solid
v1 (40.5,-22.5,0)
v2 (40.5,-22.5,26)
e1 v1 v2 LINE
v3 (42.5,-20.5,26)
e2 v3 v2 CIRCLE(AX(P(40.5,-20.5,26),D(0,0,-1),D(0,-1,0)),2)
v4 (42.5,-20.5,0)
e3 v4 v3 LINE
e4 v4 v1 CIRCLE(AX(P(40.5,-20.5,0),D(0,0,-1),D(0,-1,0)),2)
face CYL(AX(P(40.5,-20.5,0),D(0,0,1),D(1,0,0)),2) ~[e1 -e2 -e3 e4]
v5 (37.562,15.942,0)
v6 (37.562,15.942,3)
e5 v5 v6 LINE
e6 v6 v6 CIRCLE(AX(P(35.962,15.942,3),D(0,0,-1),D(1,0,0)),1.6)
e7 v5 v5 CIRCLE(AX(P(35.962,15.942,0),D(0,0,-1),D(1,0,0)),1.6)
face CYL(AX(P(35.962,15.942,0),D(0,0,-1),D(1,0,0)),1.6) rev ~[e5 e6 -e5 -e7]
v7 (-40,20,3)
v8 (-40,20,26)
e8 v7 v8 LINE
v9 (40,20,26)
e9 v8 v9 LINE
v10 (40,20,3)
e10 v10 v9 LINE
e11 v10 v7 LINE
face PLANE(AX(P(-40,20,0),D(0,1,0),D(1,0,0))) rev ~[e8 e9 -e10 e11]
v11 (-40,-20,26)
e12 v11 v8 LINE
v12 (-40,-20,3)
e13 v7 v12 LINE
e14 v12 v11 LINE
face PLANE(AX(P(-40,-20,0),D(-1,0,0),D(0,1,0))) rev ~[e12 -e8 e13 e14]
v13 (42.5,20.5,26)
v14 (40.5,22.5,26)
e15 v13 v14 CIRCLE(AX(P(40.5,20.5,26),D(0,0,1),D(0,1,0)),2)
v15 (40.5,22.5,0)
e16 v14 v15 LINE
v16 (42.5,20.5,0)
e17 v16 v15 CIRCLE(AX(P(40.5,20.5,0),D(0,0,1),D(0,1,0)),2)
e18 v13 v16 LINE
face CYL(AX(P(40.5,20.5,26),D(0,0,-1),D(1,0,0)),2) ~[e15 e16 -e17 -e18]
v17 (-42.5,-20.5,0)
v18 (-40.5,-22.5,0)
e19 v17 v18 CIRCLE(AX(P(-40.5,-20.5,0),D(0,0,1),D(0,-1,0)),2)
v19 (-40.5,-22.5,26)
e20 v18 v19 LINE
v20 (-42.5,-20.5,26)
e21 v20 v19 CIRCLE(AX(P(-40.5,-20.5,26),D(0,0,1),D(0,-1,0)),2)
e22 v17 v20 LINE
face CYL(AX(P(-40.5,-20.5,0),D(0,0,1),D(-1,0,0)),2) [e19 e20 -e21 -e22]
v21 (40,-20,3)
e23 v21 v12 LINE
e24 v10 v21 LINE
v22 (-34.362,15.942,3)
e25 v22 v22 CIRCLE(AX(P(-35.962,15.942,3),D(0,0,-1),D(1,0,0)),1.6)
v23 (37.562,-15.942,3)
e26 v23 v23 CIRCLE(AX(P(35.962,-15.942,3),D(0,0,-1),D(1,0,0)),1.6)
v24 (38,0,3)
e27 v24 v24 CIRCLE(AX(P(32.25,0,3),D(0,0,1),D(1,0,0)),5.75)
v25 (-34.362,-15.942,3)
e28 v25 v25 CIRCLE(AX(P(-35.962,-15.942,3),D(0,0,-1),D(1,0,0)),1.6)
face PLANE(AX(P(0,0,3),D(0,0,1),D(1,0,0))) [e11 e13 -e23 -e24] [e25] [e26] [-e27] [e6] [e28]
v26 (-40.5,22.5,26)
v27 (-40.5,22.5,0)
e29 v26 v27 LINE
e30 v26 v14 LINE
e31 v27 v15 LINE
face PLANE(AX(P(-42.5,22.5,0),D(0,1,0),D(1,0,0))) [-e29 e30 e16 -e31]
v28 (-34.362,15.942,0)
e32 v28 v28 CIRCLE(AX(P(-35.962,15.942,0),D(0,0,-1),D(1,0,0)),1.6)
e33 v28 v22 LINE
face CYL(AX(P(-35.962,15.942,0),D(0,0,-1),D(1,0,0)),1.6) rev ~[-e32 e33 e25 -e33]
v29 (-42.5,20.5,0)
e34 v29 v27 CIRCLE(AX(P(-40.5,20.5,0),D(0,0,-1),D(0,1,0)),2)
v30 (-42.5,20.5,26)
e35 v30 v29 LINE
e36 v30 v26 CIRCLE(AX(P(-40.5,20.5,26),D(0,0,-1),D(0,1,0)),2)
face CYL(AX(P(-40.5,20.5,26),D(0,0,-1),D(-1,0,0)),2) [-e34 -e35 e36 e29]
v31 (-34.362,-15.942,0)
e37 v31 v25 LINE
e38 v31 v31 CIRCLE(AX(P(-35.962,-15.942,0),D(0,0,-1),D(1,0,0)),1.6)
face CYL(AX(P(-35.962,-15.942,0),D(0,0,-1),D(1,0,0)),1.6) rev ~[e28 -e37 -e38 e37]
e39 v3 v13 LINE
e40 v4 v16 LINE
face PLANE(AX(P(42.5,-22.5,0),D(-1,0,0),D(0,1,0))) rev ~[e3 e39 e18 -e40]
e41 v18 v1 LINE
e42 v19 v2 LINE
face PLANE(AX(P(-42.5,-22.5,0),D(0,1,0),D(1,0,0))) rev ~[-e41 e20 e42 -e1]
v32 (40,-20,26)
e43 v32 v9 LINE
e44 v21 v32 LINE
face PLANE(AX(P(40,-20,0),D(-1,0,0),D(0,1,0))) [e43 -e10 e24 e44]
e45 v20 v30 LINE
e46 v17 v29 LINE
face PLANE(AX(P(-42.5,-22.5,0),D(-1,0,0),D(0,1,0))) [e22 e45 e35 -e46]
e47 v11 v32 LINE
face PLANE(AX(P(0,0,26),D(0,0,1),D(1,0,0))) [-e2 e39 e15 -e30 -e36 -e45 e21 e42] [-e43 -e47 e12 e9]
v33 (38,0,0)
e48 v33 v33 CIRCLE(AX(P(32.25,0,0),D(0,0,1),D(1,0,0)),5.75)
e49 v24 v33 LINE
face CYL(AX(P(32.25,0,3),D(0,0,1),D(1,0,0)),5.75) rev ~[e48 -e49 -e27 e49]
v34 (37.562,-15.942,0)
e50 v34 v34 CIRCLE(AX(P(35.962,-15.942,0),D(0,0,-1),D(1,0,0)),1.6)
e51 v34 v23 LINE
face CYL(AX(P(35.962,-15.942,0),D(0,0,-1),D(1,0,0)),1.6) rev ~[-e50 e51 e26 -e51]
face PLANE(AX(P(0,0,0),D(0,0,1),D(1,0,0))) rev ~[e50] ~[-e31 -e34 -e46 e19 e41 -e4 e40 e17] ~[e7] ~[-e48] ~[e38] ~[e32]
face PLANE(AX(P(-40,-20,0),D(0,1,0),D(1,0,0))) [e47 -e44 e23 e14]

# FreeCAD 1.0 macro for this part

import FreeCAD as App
import Part
import Sketcher

V = App.Vector
Q = App.Units.Quantity


def edges_at(feature, points):
    """Names of the edges that pass closest to the given points."""
    edges = feature.Shape.Edges
    near = lambda p: min(range(len(edges)), key=lambda i: edges[i].distToShape(Part.Vertex(*p))[0])
    return sorted({f"Edge{near(p) + 1}" for p in points})

doc = App.newDocument("Part")
body = doc.addObject("PartDesign::Body", "Body")

# Sketch on XY plane
sketch1 = body.newObject("Sketcher::SketchObject", "Sketch")
sketch1.AttachmentSupport = (doc.getObject("XY_Plane"), [""])
sketch1.MapMode = "FlatFace"
sketch1.addGeometry([
    Part.LineSegment(V(-42, 22, 0), V(-42, -22, 0)),
    Part.LineSegment(V(-42, -22, 0), V(42, -22, 0)),
    Part.LineSegment(V(42, -22, 0), V(42, 22, 0)),
    Part.LineSegment(V(42, 22, 0), V(-42, 22, 0)),
], False)
sketch1.addConstraint([
    Sketcher.Constraint("Coincident", 0, 2, 1, 1),
    Sketcher.Constraint("Coincident", 1, 2, 2, 1),
    Sketcher.Constraint("Coincident", 2, 2, 3, 1),
    Sketcher.Constraint("Coincident", 3, 2, 0, 1),
    Sketcher.Constraint("Vertical", 0),
    Sketcher.Constraint("Horizontal", 1),
    Sketcher.Constraint("Vertical", 2),
    Sketcher.Constraint("Horizontal", 3),
    Sketcher.Constraint("Symmetric", 0, 2, 2, 2, -1, 1),
    Sketcher.Constraint("DistanceX", 1, 1, 1, 2, Q("85 mm")),
    Sketcher.Constraint("DistanceY", 0, 2, 0, 1, Q("45 mm")),
])
pad1 = body.newObject("PartDesign::Pad", "Pad")
pad1.Profile = sketch1
pad1.Length = 3

# Sketch on XY plane
sketch2 = body.newObject("Sketcher::SketchObject", "Sketch001")
sketch2.AttachmentSupport = (doc.getObject("XY_Plane"), [""])
sketch2.MapMode = "FlatFace"
sketch2.addGeometry([
    Part.LineSegment(V(-42, 22, 0), V(-42, -22, 0)),  # 0
    Part.LineSegment(V(-42, -22, 0), V(42, -22, 0)),  # 1
    Part.LineSegment(V(42, -22, 0), V(42, 22, 0)),  # 2
    Part.LineSegment(V(42, 22, 0), V(-42, 22, 0)),  # 3
    Part.LineSegment(V(40, -20, 0), V(-40, -20, 0)),  # 4
    Part.LineSegment(V(-40, -20, 0), V(-40, 20, 0)),  # 5
    Part.LineSegment(V(-40, 20, 0), V(40, 20, 0)),  # 6
    Part.LineSegment(V(40, 20, 0), V(40, -20, 0)),  # 7
], False)
sketch2.addConstraint([
    Sketcher.Constraint("Coincident", 0, 2, 1, 1),
    Sketcher.Constraint("Coincident", 1, 2, 2, 1),
    Sketcher.Constraint("Coincident", 2, 2, 3, 1),
    Sketcher.Constraint("Coincident", 3, 2, 0, 1),
    Sketcher.Constraint("Coincident", 4, 2, 5, 1),
    Sketcher.Constraint("Coincident", 5, 2, 6, 1),
    Sketcher.Constraint("Coincident", 6, 2, 7, 1),
    Sketcher.Constraint("Coincident", 7, 2, 4, 1),
    Sketcher.Constraint("Vertical", 0),
    Sketcher.Constraint("Horizontal", 1),
    Sketcher.Constraint("Vertical", 2),
    Sketcher.Constraint("Horizontal", 3),
    Sketcher.Constraint("Horizontal", 4),
    Sketcher.Constraint("Vertical", 5),
    Sketcher.Constraint("Horizontal", 6),
    Sketcher.Constraint("Vertical", 7),
    Sketcher.Constraint("Symmetric", 0, 2, 2, 2, -1, 1),
    Sketcher.Constraint("Symmetric", 4, 2, 6, 2, -1, 1),
    Sketcher.Constraint("DistanceX", 1, 1, 1, 2, Q("85 mm")),
    Sketcher.Constraint("DistanceX", 4, 2, 4, 1, Q("80 mm")),
    Sketcher.Constraint("DistanceY", 0, 2, 0, 1, Q("45 mm")),
    Sketcher.Constraint("DistanceY", 5, 1, 5, 2, Q("40 mm")),
])
pad2 = body.newObject("PartDesign::Pad", "Pad001")
pad2.Profile = sketch2
pad2.Length = 26
doc.recompute()

fillet = body.newObject("PartDesign::Fillet", "Fillet")
fillet.Base = (pad2, edges_at(pad2, [
    (-42.5, -22.5, 13),
    (42.5, -22.5, 13),
    (-42.5, 22.5, 13),
    (42.5, 22.5, 13),
]))
fillet.Radius = 2

# Sketch on XY plane
sketch3 = body.newObject("Sketcher::SketchObject", "Sketch002")
sketch3.AttachmentSupport = (doc.getObject("XY_Plane"), [""])
sketch3.MapMode = "FlatFace"
sketch3.AttachmentOffset = App.Placement(V(0, 0, 3), App.Rotation())
sketch3.addGeometry(Part.Circle(V(32, 0, 0), V(0, 0, 1), 6), False)
sketch3.addConstraint([
    Sketcher.Constraint("PointOnObject", 0, 3, -1),
    Sketcher.Constraint("Diameter", 0, Q("11.5 mm")),
    Sketcher.Constraint("DistanceX", -1, 1, 0, 3, Q("32.25 mm")),
])
pocket1 = body.newObject("PartDesign::Pocket", "Pocket")
pocket1.Profile = sketch3
pocket1.Type = "ThroughAll"

# Sketch on XY plane
sketch4 = body.newObject("Sketcher::SketchObject", "Sketch003")
sketch4.AttachmentSupport = (doc.getObject("XY_Plane"), [""])
sketch4.MapMode = "FlatFace"
sketch4.addGeometry([
    Part.Circle(V(-36, 15.9, 0), V(0, 0, 1), 1.6),
    Part.Circle(V(-36, -15.9, 0), V(0, 0, 1), 1.6),
    Part.Circle(V(36, -15.9, 0), V(0, 0, 1), 1.6),
    Part.Circle(V(36, 15.9, 0), V(0, 0, 1), 1.6),
], False)
sketch4.addConstraint([
    Sketcher.Constraint("Equal", 0, 1),
    Sketcher.Constraint("Equal", 1, 2),
    Sketcher.Constraint("Equal", 2, 3),
    Sketcher.Constraint("Symmetric", 0, 3, 2, 3, -1, 1),
    Sketcher.Constraint("Symmetric", 1, 3, 3, 3, -1, 1),
    Sketcher.Constraint("Symmetric", 1, 3, 2, 3, -2),
    Sketcher.Constraint("Diameter", 0, Q("3.2 mm")),
    Sketcher.Constraint("DistanceX", 0, 3, -1, 1, Q("35.962 mm")),
    Sketcher.Constraint("DistanceY", -1, 1, 0, 3, Q("15.942 mm")),
])
pocket2 = body.newObject("PartDesign::Pocket", "Pocket001")
pocket2.Profile = sketch4
pocket2.Length = 25
pocket2.Reversed = True

doc.recompute()
